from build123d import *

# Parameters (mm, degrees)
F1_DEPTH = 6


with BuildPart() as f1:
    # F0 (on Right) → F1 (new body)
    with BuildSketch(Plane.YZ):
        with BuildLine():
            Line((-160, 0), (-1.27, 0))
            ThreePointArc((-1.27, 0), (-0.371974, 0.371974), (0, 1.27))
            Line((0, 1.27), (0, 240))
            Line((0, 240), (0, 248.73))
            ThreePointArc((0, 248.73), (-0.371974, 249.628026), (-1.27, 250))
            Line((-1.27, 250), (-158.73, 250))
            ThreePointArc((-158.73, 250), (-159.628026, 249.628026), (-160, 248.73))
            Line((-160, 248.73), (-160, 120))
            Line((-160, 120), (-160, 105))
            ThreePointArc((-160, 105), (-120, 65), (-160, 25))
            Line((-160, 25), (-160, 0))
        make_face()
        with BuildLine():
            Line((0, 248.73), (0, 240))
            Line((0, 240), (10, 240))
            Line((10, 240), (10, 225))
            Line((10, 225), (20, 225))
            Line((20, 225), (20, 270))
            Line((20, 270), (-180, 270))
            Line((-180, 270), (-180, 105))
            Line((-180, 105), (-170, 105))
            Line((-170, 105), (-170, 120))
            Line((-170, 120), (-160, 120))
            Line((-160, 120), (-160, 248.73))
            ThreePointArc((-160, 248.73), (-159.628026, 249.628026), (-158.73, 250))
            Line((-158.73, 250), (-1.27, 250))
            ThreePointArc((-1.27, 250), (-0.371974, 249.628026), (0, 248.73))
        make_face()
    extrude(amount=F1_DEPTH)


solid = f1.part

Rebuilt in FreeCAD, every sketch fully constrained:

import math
import FreeCAD as App
import Part
import Sketcher

V = App.Vector

doc = App.newDocument("Part")
params = doc.addObject("Spreadsheet::Sheet", "Params")
for row, (alias, value) in enumerate([
    ("sketch1_radius", "40 mm"),
    ("sketch1_width", "10 mm"),
    ("sketch1_width2", "200 mm"),
    ("sketch1_height", "15 mm"),
    ("sketch1_height2", "45 mm"),
    ("pad1_length", "6 mm"),
], start=1):
    params.set(f"A{row}", alias)
    params.set(f"B{row}", "=" + value)
    params.setAlias(f"B{row}", alias)

body = doc.addObject("PartDesign::Body", "Body")

sketch1 = body.newObject("Sketcher::SketchObject", "Sketch")
sketch1.AttachmentSupport = (doc.getObject("YZ_Plane"), [""])
sketch1.MapMode = "FlatFace"
sketch1.addGeometry([
    Part.LineSegment(V(-160, 0, 0), V(-1.27, 0, 0)),
    Part.ArcOfCircle(Part.Circle(V(-1.269999, 1.269999, 0), V(0, 0, 1), 1.269999), math.radians(-90.00006), math.radians(0.00006)),
    Part.LineSegment(V(0, 1.27, 0), V(0, 240, 0)),
    Part.LineSegment(V(0, 240, 0), V(10, 240, 0)),
    Part.LineSegment(V(10, 240, 0), V(10, 225, 0)),
    Part.LineSegment(V(10, 225, 0), V(20, 225, 0)),
    Part.LineSegment(V(20, 225, 0), V(20, 270, 0)),
    Part.LineSegment(V(20, 270, 0), V(-180, 270, 0)),
    Part.LineSegment(V(-180, 270, 0), V(-180, 105, 0)),
    Part.LineSegment(V(-180, 105, 0), V(-170, 105, 0)),
    Part.LineSegment(V(-170, 105, 0), V(-170, 120, 0)),
    Part.LineSegment(V(-170, 120, 0), V(-160, 120, 0)),
    Part.LineSegment(V(-160, 120, 0), V(-160, 105, 0)),
    Part.ArcOfCircle(Part.Circle(V(-160, 65, 0), V(0, 0, 1), 40), math.radians(-90), math.radians(90)),
    Part.LineSegment(V(-160, 25, 0), V(-160, 0, 0)),
], False)
sketch1.addConstraint([
    Sketcher.Constraint("Tangent", 0, 2, 1, 1),
    Sketcher.Constraint("Tangent", 1, 2, 2, 1),
    Sketcher.Constraint("Coincident", 2, 2, 3, 1),
    Sketcher.Constraint("Coincident", 3, 2, 4, 1),
    Sketcher.Constraint("Coincident", 4, 2, 5, 1),
    Sketcher.Constraint("Coincident", 5, 2, 6, 1),
    Sketcher.Constraint("Coincident", 6, 2, 7, 1),
    Sketcher.Constraint("Coincident", 7, 2, 8, 1),
    Sketcher.Constraint("Coincident", 8, 2, 9, 1),
    Sketcher.Constraint("Coincident", 9, 2, 10, 1),
    Sketcher.Constraint("Coincident", 10, 2, 11, 1),
    Sketcher.Constraint("Coincident", 11, 2, 12, 1),
    Sketcher.Constraint("Coincident", 12, 2, 13, 2),
    Sketcher.Constraint("Coincident", 13, 1, 14, 1),
    Sketcher.Constraint("Coincident", 14, 2, 0, 1),
    Sketcher.Constraint("Horizontal", 0),
    Sketcher.Constraint("Vertical", 2),
    Sketcher.Constraint("Horizontal", 3),
    Sketcher.Constraint("Vertical", 4),
    Sketcher.Constraint("Horizontal", 5),
    Sketcher.Constraint("Vertical", 6),
    Sketcher.Constraint("Horizontal", 7),
    Sketcher.Constraint("Vertical", 8),
    Sketcher.Constraint("Horizontal", 9),
    Sketcher.Constraint("Vertical", 10),
    Sketcher.Constraint("Horizontal", 11),
    Sketcher.Constraint("Vertical", 12),
    Sketcher.Constraint("Vertical", 14),
    Sketcher.Constraint("PointOnObject", 0, 2, -1),
    Sketcher.Constraint("PointOnObject", 1, 2, -2),
    Sketcher.Constraint("Horizontal", 9, 2, 12, 2),
    Sketcher.Constraint("Vertical", 13, 3, 11, 2),
    Sketcher.Constraint("Vertical", 12, 2, 13, 1),
    Sketcher.Constraint("Equal", 3, 5),
    Sketcher.Constraint("Equal", 5, 9),
    Sketcher.Constraint("Equal", 9, 11),
    Sketcher.Constraint("Equal", 4, 10),
    Sketcher.Constraint("Radius", 13, 40.0),
    Sketcher.Constraint("DistanceX", 3, 1, 3, 2, 10.0),
    Sketcher.Constraint("DistanceX", 7, 2, 7, 1, 200.0),
    Sketcher.Constraint("DistanceY", 4, 2, 4, 1, 15.0),
    Sketcher.Constraint("DistanceY", 6, 1, 6, 2, 45.0),
    Sketcher.Constraint("DistanceY", 8, 2, 8, 1, 165.0),
    Sketcher.Constraint("DistanceY", 14, 2, 14, 1, 25.0),
    Sketcher.Constraint("Radius", 1, 1.269999),
])
sketch1.setExpression("Constraints[37]", "Params.sketch1_radius")
sketch1.setExpression("Constraints[38]", "Params.sketch1_width")
sketch1.setExpression("Constraints[39]", "Params.sketch1_width2")
sketch1.setExpression("Constraints[40]", "Params.sketch1_height")
sketch1.setExpression("Constraints[41]", "Params.sketch1_height2")
pad1 = body.newObject("PartDesign::Pad", "Pad")
pad1.Profile = sketch1
pad1.setExpression("Length", "Params.pad1_length")

doc.recompute()
